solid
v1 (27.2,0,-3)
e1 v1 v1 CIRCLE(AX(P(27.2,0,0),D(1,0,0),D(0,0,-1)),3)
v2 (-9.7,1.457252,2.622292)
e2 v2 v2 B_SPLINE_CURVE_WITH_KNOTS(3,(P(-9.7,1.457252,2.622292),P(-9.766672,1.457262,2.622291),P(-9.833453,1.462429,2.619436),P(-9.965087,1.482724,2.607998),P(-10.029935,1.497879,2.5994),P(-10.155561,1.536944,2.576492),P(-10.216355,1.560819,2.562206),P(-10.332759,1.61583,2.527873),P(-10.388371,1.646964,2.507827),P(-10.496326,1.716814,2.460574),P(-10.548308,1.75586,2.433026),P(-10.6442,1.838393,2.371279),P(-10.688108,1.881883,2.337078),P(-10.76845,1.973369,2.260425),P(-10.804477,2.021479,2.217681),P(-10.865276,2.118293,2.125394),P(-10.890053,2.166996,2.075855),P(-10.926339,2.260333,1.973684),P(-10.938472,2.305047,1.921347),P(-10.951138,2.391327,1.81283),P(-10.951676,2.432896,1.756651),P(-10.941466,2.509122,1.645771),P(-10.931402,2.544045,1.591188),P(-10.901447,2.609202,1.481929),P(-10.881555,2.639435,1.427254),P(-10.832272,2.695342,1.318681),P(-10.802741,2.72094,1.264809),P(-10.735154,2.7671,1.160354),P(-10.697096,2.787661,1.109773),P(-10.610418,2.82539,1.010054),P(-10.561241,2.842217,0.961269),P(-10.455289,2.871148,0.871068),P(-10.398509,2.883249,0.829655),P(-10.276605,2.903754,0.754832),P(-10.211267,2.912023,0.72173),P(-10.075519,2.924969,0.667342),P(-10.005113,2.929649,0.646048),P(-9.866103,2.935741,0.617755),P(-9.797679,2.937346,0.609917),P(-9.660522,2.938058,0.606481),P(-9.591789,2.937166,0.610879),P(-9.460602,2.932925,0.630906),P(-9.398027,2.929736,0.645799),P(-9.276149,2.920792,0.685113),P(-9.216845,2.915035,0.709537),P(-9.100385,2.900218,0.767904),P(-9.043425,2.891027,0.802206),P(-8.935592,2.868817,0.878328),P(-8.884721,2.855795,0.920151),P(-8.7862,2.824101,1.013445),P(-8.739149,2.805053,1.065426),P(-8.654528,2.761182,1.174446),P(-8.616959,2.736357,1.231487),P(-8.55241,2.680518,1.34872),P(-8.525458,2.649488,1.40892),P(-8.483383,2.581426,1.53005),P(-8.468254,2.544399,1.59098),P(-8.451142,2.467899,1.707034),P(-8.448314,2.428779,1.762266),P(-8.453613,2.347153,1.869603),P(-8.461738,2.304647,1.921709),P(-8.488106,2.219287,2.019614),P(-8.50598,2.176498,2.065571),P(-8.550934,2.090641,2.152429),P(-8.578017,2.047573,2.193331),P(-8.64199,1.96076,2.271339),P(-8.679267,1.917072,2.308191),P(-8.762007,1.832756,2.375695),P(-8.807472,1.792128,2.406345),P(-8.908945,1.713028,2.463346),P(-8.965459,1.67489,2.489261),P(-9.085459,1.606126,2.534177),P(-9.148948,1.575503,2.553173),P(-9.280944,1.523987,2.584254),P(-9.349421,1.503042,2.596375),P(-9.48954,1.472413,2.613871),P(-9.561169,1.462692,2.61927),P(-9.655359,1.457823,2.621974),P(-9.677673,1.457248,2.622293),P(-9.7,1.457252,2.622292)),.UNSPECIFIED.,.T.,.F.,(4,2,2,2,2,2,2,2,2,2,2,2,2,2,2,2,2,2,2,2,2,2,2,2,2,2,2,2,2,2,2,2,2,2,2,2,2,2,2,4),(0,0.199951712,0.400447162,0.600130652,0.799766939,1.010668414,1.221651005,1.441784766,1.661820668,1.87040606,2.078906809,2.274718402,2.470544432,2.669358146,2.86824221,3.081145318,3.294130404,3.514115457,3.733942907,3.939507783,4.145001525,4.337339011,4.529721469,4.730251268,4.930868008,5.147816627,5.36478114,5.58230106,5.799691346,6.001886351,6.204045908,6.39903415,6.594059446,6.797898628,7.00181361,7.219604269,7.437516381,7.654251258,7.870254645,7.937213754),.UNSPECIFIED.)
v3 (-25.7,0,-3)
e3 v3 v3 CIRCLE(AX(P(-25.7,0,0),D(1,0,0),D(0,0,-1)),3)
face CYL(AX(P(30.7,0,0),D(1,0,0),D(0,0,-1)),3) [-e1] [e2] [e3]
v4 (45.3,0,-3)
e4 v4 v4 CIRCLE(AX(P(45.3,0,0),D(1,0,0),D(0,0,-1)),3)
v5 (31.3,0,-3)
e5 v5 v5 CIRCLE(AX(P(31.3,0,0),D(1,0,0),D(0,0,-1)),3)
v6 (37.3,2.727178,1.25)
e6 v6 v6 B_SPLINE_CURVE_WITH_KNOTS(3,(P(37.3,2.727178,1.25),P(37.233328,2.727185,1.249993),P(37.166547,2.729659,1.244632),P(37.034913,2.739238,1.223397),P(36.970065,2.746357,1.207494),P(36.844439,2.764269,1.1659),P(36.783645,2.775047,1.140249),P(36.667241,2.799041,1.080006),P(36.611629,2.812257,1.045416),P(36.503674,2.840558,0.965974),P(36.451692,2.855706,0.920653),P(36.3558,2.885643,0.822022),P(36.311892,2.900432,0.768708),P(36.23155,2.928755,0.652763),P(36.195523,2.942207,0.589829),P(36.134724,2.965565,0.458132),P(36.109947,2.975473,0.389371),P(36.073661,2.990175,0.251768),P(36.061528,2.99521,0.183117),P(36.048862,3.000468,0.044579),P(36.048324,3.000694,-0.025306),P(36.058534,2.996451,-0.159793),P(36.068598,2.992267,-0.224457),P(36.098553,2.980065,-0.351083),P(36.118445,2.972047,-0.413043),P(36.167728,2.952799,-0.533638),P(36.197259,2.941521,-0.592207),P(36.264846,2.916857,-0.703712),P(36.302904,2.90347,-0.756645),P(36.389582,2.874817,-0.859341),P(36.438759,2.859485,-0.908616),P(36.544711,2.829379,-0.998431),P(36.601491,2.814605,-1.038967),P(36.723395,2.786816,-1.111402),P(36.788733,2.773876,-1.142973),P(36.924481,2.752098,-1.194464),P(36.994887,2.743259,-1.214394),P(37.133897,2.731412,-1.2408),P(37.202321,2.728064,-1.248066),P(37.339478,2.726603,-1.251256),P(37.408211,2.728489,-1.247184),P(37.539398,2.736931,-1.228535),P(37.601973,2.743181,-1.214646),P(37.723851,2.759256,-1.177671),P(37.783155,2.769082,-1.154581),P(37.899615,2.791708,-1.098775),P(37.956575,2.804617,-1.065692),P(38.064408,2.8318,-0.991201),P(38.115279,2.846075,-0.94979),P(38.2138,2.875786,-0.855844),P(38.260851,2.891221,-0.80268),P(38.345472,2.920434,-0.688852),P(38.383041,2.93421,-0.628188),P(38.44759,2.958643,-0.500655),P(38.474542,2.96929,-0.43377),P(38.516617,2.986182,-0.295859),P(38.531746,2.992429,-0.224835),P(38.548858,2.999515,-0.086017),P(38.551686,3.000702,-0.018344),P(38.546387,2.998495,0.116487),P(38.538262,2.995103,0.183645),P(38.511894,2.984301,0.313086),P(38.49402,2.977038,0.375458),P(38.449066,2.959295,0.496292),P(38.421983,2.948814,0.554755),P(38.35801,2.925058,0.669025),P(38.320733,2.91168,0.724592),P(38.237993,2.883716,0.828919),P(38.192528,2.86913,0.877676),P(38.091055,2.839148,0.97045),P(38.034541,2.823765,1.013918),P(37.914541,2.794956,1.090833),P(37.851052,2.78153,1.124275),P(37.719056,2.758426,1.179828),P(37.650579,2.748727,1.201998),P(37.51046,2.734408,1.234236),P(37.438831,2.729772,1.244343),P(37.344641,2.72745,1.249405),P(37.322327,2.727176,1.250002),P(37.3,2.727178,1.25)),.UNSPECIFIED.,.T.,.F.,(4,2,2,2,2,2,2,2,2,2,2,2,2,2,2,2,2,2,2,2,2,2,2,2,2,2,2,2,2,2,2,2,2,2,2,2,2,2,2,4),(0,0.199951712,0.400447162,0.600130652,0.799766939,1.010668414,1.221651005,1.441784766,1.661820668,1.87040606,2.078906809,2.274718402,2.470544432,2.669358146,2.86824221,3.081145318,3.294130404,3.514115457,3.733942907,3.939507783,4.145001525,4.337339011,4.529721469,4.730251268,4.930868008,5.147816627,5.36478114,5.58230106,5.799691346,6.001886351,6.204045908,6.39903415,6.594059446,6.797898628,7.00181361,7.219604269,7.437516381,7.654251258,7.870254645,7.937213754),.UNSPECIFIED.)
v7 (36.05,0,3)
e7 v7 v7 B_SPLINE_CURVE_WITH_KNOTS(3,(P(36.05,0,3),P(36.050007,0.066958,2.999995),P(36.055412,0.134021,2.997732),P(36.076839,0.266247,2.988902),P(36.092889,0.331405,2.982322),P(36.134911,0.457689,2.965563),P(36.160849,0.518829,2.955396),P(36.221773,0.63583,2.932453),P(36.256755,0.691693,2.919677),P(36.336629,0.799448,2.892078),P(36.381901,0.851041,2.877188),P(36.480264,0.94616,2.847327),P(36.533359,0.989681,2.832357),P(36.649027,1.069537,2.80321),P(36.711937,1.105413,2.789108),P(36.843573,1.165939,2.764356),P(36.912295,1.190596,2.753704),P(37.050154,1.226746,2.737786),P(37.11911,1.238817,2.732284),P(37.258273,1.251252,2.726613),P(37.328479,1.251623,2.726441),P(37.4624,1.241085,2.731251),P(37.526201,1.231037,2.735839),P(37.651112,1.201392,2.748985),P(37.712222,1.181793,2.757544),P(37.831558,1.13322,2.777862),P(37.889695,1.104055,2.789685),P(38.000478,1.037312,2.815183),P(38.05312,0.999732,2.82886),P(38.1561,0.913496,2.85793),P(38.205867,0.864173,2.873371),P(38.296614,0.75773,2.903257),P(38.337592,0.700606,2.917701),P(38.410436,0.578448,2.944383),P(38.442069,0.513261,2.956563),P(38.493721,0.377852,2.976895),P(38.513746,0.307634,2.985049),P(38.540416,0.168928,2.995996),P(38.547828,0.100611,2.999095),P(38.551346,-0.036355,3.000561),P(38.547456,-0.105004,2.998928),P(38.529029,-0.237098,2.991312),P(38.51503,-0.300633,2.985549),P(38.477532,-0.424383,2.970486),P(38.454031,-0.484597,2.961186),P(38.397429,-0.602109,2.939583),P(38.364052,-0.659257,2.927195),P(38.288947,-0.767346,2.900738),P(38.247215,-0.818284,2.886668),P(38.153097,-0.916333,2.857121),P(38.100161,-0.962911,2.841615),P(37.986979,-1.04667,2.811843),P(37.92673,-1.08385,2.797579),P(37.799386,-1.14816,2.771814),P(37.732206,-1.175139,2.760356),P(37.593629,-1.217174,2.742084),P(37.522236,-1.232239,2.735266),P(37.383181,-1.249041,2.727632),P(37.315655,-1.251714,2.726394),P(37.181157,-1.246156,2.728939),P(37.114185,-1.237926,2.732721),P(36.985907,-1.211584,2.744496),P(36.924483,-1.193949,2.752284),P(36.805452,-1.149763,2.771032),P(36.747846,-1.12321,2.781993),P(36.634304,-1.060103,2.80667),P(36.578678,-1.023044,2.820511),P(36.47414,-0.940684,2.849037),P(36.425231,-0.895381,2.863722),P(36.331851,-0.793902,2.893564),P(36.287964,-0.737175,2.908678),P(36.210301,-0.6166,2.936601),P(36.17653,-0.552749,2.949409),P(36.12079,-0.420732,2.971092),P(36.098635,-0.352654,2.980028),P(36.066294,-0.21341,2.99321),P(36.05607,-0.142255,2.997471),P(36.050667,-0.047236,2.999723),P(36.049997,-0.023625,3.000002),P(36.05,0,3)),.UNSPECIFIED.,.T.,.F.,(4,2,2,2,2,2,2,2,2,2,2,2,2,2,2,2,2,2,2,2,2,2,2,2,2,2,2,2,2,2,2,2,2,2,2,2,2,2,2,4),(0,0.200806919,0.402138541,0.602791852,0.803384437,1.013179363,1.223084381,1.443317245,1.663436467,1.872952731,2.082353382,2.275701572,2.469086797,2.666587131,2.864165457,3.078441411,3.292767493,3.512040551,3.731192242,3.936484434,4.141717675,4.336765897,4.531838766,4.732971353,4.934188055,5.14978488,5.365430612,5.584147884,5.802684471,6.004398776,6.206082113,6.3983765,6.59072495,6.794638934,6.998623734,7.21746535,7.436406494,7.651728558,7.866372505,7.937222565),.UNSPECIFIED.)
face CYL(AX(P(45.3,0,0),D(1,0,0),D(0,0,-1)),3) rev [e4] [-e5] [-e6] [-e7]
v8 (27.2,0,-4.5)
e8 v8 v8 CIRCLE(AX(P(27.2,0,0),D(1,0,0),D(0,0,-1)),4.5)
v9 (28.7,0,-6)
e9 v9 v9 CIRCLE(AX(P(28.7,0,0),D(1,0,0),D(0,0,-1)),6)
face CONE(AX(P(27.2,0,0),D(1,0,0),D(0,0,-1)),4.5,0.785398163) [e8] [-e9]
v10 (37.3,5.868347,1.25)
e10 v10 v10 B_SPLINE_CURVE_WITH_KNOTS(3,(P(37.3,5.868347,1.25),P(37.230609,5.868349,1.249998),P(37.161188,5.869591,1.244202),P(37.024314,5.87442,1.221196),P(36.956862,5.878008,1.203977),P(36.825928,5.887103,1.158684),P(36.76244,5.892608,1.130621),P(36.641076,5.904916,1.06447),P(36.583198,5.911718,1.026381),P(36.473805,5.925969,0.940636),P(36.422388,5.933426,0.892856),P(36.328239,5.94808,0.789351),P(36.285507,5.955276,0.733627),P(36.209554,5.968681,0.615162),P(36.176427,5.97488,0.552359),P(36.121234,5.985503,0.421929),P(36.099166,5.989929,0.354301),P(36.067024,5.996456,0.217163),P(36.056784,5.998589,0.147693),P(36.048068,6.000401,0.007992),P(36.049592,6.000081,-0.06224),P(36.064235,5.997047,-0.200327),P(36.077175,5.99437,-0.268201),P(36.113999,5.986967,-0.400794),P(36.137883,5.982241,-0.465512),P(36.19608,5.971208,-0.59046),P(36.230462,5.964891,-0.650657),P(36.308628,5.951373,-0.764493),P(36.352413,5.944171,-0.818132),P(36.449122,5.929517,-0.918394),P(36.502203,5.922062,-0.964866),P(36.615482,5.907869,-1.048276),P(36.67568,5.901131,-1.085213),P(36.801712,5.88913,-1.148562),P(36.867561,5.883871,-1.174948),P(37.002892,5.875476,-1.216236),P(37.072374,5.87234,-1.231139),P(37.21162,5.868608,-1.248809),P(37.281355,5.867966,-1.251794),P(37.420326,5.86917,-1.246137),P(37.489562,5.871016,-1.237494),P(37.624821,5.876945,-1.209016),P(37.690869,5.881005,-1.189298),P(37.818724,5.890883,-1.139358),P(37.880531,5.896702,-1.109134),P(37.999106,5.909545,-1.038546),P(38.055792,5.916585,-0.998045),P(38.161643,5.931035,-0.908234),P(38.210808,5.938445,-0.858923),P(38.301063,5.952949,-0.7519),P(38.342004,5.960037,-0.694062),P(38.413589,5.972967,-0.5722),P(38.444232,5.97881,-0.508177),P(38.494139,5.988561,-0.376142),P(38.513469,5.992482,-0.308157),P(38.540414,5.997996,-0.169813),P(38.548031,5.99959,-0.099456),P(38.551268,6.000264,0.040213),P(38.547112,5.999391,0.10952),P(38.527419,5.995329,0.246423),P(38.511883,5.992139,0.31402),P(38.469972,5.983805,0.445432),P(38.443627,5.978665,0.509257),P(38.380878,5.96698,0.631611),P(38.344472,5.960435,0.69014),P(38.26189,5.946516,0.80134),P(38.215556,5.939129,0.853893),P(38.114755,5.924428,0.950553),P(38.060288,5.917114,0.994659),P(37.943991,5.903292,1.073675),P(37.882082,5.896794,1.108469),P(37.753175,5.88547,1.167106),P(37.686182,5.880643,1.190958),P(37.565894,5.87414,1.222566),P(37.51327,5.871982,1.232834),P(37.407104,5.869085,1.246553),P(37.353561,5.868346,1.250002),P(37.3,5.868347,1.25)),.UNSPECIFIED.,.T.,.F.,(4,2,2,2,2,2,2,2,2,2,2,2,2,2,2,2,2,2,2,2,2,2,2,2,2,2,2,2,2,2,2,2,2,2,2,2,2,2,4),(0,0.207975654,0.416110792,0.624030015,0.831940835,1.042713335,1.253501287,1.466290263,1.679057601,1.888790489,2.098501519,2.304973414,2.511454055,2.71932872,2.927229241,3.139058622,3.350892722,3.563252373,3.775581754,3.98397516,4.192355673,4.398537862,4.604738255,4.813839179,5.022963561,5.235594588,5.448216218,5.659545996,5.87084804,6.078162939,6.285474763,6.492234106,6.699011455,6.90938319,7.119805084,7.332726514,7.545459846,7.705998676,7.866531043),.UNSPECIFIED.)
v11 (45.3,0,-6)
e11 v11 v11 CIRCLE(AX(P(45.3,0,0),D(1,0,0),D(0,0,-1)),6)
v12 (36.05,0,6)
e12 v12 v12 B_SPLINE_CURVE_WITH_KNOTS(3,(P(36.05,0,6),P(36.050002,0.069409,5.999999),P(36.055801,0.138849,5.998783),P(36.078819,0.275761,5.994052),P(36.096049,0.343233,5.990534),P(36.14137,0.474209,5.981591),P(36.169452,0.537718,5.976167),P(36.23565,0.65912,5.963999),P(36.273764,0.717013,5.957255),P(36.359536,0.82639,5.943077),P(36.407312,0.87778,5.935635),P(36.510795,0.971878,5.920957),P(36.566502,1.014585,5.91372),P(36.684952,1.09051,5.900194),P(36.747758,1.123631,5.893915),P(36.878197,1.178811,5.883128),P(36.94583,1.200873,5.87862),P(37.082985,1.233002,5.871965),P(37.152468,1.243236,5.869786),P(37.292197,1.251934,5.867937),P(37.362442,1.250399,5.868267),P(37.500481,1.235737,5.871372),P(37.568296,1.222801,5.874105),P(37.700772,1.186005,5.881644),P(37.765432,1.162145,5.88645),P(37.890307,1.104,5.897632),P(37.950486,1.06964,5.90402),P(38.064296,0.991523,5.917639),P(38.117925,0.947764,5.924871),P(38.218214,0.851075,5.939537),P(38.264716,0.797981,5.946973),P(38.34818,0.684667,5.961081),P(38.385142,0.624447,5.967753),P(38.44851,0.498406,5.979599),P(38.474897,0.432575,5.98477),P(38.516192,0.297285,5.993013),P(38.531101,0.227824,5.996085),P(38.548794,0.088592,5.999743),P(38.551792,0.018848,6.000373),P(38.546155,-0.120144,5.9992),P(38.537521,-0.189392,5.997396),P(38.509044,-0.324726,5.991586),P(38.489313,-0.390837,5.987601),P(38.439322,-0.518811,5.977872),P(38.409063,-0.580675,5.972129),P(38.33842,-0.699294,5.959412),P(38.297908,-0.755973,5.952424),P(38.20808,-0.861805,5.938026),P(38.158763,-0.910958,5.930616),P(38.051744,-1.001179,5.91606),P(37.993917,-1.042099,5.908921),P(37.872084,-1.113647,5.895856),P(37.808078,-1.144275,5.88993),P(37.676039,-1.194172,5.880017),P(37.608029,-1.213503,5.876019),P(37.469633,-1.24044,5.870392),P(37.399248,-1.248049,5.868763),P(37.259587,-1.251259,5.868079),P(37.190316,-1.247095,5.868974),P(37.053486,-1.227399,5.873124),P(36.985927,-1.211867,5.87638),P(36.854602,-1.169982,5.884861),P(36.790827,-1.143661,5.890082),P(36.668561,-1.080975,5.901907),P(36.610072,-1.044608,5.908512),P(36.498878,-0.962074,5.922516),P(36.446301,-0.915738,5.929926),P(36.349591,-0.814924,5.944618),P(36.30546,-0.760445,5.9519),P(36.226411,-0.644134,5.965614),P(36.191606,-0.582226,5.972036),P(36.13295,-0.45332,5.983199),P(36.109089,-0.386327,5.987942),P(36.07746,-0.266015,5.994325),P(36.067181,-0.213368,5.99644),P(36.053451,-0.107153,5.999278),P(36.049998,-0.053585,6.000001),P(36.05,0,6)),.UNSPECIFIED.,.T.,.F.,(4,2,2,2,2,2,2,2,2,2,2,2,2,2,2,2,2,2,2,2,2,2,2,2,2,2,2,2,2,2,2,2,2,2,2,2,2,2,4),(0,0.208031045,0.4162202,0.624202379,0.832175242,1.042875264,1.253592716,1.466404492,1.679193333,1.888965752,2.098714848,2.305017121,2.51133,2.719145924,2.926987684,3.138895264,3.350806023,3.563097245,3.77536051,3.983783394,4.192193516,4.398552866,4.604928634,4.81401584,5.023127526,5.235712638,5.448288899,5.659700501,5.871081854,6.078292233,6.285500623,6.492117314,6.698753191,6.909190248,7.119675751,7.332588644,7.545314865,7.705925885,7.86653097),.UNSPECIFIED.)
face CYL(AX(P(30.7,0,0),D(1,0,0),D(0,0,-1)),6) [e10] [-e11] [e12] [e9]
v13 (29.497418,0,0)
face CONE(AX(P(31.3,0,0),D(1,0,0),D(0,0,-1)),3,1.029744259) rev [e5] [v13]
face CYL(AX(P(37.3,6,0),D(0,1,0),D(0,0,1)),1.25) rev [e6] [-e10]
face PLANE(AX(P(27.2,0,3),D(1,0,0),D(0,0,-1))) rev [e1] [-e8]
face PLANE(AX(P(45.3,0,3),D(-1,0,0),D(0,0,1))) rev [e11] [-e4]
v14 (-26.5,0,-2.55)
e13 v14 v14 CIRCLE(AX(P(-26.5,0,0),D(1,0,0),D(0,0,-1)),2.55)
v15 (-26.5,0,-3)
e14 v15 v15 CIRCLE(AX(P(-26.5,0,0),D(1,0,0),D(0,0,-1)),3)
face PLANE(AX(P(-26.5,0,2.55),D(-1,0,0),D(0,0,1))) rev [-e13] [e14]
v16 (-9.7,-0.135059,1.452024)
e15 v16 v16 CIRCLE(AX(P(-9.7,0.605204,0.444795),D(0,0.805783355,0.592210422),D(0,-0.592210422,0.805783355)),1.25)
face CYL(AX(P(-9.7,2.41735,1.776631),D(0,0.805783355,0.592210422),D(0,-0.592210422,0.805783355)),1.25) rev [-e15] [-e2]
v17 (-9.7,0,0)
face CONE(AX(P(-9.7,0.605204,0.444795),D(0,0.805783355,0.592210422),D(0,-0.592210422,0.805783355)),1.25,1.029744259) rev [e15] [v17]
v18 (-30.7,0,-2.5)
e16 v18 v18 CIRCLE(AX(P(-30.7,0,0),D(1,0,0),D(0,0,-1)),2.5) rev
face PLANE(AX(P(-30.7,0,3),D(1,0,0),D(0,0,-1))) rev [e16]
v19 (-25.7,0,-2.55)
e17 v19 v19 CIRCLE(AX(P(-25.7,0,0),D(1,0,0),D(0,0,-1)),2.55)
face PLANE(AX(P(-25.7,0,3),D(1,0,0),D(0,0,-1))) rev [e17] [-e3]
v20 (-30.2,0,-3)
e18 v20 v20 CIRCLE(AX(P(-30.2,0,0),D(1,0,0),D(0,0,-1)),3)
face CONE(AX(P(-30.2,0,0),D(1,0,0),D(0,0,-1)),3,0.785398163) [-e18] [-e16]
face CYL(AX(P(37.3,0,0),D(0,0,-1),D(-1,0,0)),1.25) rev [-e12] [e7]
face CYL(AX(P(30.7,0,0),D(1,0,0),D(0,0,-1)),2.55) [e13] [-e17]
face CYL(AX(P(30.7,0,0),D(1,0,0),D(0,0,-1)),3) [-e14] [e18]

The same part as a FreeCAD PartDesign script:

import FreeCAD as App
import Part
import Sketcher
from FreeCAD import Vector
Q = App.Units.Quantity


def edges_at(feature, points):
    """Names of the edges that pass closest to the given points."""
    edges = feature.Shape.Edges
    near = lambda p: min(range(len(edges)), key=lambda i: edges[i].distToShape(Part.Vertex(*p))[0])
    return sorted({f"Edge{near(p) + 1}" for p in points})


def add_polygon(sketch, points):
    """Adds a closed chain of lines whose ends are joined by coincident constraints."""
    first, n = sketch.GeometryCount, len(points)
    for a, b in zip(points, points[1:] + points[:1]):
        sketch.addGeometry(Part.LineSegment(App.Vector(*a, 0), App.Vector(*b, 0)), False)
    for i in range(n):
        sketch.addConstraint(Sketcher.Constraint("Coincident", first + i, 2, first + (i + 1) % n, 1))

doc = App.newDocument("Part")
params = doc.addObject("Spreadsheet::Sheet", "Params")
for row, (alias, value) in enumerate([
    ("sketch1_width", "76 mm"),
    ("sketch1_height", "6 mm"),
    ("sketch1_height2", "3 mm"),
    ("sketch1_width2", "4.2 mm"),
    ("sketch1_width3", "0.8 mm"),
    ("revolution_angle", "360 deg"),
    ("chamfer_size", "0.5 mm"),
    ("sketch2_diameter", "2.5 mm"),
    ("hole_diameter", "2.5 mm"),
    ("hole_depth", "6 mm"),
    ("sketch3_height", "6 mm"),
    ("sketch3_width", "1.25 mm"),
    ("groove_angle", "360 deg"),
    ("sketch4_diameter", "6 mm"),
    ("hole2_diameter", "6 mm"),
    ("hole2_depth", "14 mm"),
    ("sketch5_diameter", "2.5 mm"),
    ("hole3_diameter", "2.5 mm"),
    ("hole3_depth", "2.248924 mm"),
], start=1):
    params.set(f"A{row}", alias)
    params.set(f"B{row}", "=" + value)
    params.setAlias(f"B{row}", alias)

body = doc.addObject("PartDesign::Body", "Body")

# Sketch on XZ plane
sketch1 = body.newObject("Sketcher::SketchObject", "Sketch")
sketch1.AttachmentSupport = (doc.getObject("XZ_Plane"), [""])
sketch1.MapMode = "FlatFace"
add_polygon(sketch1, [(45.3, 6), (45.3, 0), (-30.7, 0), (-30.7, 3), (-26.5, 3), (-26.5, 2.55), (-25.7, 2.55), (-25.7, 3), (27.2, 3), (27.2, 4.5), (28.7, 6)])  # lines 0-10
sketch1.addConstraint([
    Sketcher.Constraint("Vertical", 0),
    Sketcher.Constraint("Horizontal", 1),
    Sketcher.Constraint("Vertical", 2),
    Sketcher.Constraint("Horizontal", 3),
    Sketcher.Constraint("Vertical", 4),
    Sketcher.Constraint("Horizontal", 5),
    Sketcher.Constraint("Vertical", 6),
    Sketcher.Constraint("Horizontal", 7),
    Sketcher.Constraint("Vertical", 8),
    Sketcher.Constraint("Horizontal", 10),
    Sketcher.Constraint("PointOnObject", 0, 2, -1),
    Sketcher.Constraint("Horizontal", 3, 2, 6, 2),
    Sketcher.Constraint("DistanceX", 1, 2, 1, 1, Q("76 mm")),
    Sketcher.Constraint("DistanceY", 0, 2, 0, 1, Q("6 mm")),
    Sketcher.Constraint("DistanceY", 2, 1, 2, 2, Q("3 mm")),
    Sketcher.Constraint("Angle", 9, Q("45 deg")),
    Sketcher.Constraint("DistanceX", 3, 1, 3, 2, Q("4.2 mm")),
    Sketcher.Constraint("DistanceX", 5, 1, 5, 2, Q("0.8 mm")),
    Sketcher.Constraint("DistanceX", 7, 1, 7, 2, Q("52.9 mm")),
    Sketcher.Constraint("DistanceX", 10, 1, 10, 2, Q("16.6 mm")),
    Sketcher.Constraint("DistanceY", 4, 2, 4, 1, Q("0.45 mm")),
    Sketcher.Constraint("DistanceX", -1, 1, 0, 2, Q("45.3 mm")),
])
sketch1.setExpression("Constraints[23]", "Params.sketch1_width")
sketch1.setExpression("Constraints[24]", "Params.sketch1_height")
sketch1.setExpression("Constraints[25]", "Params.sketch1_height2")
sketch1.setExpression("Constraints[27]", "Params.sketch1_width2")
sketch1.setExpression("Constraints[28]", "Params.sketch1_width3")
revolution = body.newObject("PartDesign::Revolution", "Revolution")
revolution.Profile = sketch1
revolution.ReferenceAxis = (sketch1, ["H_Axis"])
revolution.setExpression("Angle", "Params.revolution_angle")
doc.recompute()

chamfer = body.newObject("PartDesign::Chamfer", "Chamfer")
chamfer.Base = (revolution, edges_at(revolution, [(-30.7, 0, 3)]))
chamfer.setExpression("Size", "Params.chamfer_size")

# Sketch on XZ plane
sketch2 = body.newObject("Sketcher::SketchObject", "Sketch001")
sketch2.AttachmentSupport = (doc.getObject("XZ_Plane"), [""])
sketch2.MapMode = "FlatFace"
sketch2.AttachmentOffset = App.Placement(Vector(0, 0, -6), App.Rotation())
sketch2.addGeometry(Part.Circle(Vector(37.3, 0, 0), Vector(0, 0, 1), 1.2), False)
sketch2.addConstraint([
    Sketcher.Constraint("PointOnObject", 0, 3, -1),
    Sketcher.Constraint("Diameter", 0, Q("2.5 mm")),
    Sketcher.Constraint("DistanceX", -1, 1, 0, 3, Q("37.3 mm")),
])
sketch2.setExpression("Constraints[1]", "Params.sketch2_diameter")
doc.recompute()
hole = body.newObject("PartDesign::Hole", "Hole")
hole.Profile = sketch2
hole.ThreadType = "None"
hole.setExpression("Diameter", "Params.hole_diameter")
hole.DepthType = "Dimension"
hole.setExpression("Depth", "Params.hole_depth")
hole.DrillPoint = "Angled"
hole.DrillPointAngle = 118
hole.Reversed = True

# Sketch on YZ plane
sketch3 = body.newObject("Sketcher::SketchObject", "Sketch002")
sketch3.AttachmentSupport = (doc.getObject("YZ_Plane"), [""])
sketch3.MapMode = "FlatFace"
sketch3.AttachmentOffset = App.Placement(Vector(0, 0, 37.3), App.Rotation())
add_polygon(sketch3, [(0, 6), (0, 0), (1.2, 0), (1.2, 6)])  # lines 0-3
sketch3.addConstraint([
    Sketcher.Constraint("Vertical", 0),
    Sketcher.Constraint("Horizontal", 1),
    Sketcher.Constraint("Vertical", 2),
    Sketcher.Constraint("Horizontal", 3),
    Sketcher.Constraint("Coincident", 0, 2, -1, 1),
    Sketcher.Constraint("DistanceY", 0, 2, 0, 1, Q("6 mm")),
    Sketcher.Constraint("DistanceX", 1, 1, 1, 2, Q("1.25 mm")),
])
sketch3.setExpression("Constraints[9]", "Params.sketch3_height")
sketch3.setExpression("Constraints[10]", "Params.sketch3_width")
groove = body.newObject("PartDesign::Groove", "Groove")
groove.Profile = sketch3
groove.ReferenceAxis = (sketch3, ["V_Axis"])
groove.setExpression("Angle", "Params.groove_angle")

# Sketch on YZ plane
sketch4 = body.newObject("Sketcher::SketchObject", "Sketch003")
sketch4.AttachmentSupport = (doc.getObject("YZ_Plane"), [""])
sketch4.MapMode = "FlatFace"
sketch4.AttachmentOffset = App.Placement(Vector(0, 0, 45.3), App.Rotation())
sketch4.addGeometry(Part.Circle(Vector(0, 0, 0), Vector(0, 0, 1), 3), False)
sketch4.addConstraint([
    Sketcher.Constraint("Coincident", 0, 3, -1, 1),
    Sketcher.Constraint("Diameter", 0, Q("6 mm")),
])
sketch4.setExpression("Constraints[1]", "Params.sketch4_diameter")
doc.recompute()
hole2 = body.newObject("PartDesign::Hole", "Hole001")
hole2.Profile = sketch4
hole2.ThreadType = "None"
hole2.setExpression("Diameter", "Params.hole2_diameter")
hole2.DepthType = "Dimension"
hole2.setExpression("Depth", "Params.hole2_depth")
hole2.DrillPoint = "Angled"
hole2.DrillPointAngle = 118

# Sketch on an angled plane
sketch5 = body.newObject("Sketcher::SketchObject", "Sketch004")
sketch5.Placement = App.Placement(Vector(0, 2.41735, 1.776631), App.Rotation(Vector(0, -0.592210422, 0.805783355), Vector(0.999999999, 0, 0), Vector(0, 0.805783355, 0.592210422), "ZXY"))
sketch5.addGeometry(Part.Circle(Vector(0, -9.7, 0), Vector(0, 0, 1), 1.2), False)
sketch5.addConstraint([
    Sketcher.Constraint("PointOnObject", 0, 3, -2),
    Sketcher.Constraint("Diameter", 0, Q("2.5 mm")),
    Sketcher.Constraint("DistanceY", 0, 3, -1, 1, Q("9.7 mm")),
])
sketch5.setExpression("Constraints[1]", "Params.sketch5_diameter")
doc.recompute()
hole3 = body.newObject("PartDesign::Hole", "Hole002")
hole3.Profile = sketch5
hole3.ThreadType = "None"
hole3.setExpression("Diameter", "Params.hole3_diameter")
hole3.DepthType = "Dimension"
hole3.setExpression("Depth", "Params.hole3_depth")
hole3.DrillPoint = "Angled"
hole3.DrillPointAngle = 118

doc.recompute()
